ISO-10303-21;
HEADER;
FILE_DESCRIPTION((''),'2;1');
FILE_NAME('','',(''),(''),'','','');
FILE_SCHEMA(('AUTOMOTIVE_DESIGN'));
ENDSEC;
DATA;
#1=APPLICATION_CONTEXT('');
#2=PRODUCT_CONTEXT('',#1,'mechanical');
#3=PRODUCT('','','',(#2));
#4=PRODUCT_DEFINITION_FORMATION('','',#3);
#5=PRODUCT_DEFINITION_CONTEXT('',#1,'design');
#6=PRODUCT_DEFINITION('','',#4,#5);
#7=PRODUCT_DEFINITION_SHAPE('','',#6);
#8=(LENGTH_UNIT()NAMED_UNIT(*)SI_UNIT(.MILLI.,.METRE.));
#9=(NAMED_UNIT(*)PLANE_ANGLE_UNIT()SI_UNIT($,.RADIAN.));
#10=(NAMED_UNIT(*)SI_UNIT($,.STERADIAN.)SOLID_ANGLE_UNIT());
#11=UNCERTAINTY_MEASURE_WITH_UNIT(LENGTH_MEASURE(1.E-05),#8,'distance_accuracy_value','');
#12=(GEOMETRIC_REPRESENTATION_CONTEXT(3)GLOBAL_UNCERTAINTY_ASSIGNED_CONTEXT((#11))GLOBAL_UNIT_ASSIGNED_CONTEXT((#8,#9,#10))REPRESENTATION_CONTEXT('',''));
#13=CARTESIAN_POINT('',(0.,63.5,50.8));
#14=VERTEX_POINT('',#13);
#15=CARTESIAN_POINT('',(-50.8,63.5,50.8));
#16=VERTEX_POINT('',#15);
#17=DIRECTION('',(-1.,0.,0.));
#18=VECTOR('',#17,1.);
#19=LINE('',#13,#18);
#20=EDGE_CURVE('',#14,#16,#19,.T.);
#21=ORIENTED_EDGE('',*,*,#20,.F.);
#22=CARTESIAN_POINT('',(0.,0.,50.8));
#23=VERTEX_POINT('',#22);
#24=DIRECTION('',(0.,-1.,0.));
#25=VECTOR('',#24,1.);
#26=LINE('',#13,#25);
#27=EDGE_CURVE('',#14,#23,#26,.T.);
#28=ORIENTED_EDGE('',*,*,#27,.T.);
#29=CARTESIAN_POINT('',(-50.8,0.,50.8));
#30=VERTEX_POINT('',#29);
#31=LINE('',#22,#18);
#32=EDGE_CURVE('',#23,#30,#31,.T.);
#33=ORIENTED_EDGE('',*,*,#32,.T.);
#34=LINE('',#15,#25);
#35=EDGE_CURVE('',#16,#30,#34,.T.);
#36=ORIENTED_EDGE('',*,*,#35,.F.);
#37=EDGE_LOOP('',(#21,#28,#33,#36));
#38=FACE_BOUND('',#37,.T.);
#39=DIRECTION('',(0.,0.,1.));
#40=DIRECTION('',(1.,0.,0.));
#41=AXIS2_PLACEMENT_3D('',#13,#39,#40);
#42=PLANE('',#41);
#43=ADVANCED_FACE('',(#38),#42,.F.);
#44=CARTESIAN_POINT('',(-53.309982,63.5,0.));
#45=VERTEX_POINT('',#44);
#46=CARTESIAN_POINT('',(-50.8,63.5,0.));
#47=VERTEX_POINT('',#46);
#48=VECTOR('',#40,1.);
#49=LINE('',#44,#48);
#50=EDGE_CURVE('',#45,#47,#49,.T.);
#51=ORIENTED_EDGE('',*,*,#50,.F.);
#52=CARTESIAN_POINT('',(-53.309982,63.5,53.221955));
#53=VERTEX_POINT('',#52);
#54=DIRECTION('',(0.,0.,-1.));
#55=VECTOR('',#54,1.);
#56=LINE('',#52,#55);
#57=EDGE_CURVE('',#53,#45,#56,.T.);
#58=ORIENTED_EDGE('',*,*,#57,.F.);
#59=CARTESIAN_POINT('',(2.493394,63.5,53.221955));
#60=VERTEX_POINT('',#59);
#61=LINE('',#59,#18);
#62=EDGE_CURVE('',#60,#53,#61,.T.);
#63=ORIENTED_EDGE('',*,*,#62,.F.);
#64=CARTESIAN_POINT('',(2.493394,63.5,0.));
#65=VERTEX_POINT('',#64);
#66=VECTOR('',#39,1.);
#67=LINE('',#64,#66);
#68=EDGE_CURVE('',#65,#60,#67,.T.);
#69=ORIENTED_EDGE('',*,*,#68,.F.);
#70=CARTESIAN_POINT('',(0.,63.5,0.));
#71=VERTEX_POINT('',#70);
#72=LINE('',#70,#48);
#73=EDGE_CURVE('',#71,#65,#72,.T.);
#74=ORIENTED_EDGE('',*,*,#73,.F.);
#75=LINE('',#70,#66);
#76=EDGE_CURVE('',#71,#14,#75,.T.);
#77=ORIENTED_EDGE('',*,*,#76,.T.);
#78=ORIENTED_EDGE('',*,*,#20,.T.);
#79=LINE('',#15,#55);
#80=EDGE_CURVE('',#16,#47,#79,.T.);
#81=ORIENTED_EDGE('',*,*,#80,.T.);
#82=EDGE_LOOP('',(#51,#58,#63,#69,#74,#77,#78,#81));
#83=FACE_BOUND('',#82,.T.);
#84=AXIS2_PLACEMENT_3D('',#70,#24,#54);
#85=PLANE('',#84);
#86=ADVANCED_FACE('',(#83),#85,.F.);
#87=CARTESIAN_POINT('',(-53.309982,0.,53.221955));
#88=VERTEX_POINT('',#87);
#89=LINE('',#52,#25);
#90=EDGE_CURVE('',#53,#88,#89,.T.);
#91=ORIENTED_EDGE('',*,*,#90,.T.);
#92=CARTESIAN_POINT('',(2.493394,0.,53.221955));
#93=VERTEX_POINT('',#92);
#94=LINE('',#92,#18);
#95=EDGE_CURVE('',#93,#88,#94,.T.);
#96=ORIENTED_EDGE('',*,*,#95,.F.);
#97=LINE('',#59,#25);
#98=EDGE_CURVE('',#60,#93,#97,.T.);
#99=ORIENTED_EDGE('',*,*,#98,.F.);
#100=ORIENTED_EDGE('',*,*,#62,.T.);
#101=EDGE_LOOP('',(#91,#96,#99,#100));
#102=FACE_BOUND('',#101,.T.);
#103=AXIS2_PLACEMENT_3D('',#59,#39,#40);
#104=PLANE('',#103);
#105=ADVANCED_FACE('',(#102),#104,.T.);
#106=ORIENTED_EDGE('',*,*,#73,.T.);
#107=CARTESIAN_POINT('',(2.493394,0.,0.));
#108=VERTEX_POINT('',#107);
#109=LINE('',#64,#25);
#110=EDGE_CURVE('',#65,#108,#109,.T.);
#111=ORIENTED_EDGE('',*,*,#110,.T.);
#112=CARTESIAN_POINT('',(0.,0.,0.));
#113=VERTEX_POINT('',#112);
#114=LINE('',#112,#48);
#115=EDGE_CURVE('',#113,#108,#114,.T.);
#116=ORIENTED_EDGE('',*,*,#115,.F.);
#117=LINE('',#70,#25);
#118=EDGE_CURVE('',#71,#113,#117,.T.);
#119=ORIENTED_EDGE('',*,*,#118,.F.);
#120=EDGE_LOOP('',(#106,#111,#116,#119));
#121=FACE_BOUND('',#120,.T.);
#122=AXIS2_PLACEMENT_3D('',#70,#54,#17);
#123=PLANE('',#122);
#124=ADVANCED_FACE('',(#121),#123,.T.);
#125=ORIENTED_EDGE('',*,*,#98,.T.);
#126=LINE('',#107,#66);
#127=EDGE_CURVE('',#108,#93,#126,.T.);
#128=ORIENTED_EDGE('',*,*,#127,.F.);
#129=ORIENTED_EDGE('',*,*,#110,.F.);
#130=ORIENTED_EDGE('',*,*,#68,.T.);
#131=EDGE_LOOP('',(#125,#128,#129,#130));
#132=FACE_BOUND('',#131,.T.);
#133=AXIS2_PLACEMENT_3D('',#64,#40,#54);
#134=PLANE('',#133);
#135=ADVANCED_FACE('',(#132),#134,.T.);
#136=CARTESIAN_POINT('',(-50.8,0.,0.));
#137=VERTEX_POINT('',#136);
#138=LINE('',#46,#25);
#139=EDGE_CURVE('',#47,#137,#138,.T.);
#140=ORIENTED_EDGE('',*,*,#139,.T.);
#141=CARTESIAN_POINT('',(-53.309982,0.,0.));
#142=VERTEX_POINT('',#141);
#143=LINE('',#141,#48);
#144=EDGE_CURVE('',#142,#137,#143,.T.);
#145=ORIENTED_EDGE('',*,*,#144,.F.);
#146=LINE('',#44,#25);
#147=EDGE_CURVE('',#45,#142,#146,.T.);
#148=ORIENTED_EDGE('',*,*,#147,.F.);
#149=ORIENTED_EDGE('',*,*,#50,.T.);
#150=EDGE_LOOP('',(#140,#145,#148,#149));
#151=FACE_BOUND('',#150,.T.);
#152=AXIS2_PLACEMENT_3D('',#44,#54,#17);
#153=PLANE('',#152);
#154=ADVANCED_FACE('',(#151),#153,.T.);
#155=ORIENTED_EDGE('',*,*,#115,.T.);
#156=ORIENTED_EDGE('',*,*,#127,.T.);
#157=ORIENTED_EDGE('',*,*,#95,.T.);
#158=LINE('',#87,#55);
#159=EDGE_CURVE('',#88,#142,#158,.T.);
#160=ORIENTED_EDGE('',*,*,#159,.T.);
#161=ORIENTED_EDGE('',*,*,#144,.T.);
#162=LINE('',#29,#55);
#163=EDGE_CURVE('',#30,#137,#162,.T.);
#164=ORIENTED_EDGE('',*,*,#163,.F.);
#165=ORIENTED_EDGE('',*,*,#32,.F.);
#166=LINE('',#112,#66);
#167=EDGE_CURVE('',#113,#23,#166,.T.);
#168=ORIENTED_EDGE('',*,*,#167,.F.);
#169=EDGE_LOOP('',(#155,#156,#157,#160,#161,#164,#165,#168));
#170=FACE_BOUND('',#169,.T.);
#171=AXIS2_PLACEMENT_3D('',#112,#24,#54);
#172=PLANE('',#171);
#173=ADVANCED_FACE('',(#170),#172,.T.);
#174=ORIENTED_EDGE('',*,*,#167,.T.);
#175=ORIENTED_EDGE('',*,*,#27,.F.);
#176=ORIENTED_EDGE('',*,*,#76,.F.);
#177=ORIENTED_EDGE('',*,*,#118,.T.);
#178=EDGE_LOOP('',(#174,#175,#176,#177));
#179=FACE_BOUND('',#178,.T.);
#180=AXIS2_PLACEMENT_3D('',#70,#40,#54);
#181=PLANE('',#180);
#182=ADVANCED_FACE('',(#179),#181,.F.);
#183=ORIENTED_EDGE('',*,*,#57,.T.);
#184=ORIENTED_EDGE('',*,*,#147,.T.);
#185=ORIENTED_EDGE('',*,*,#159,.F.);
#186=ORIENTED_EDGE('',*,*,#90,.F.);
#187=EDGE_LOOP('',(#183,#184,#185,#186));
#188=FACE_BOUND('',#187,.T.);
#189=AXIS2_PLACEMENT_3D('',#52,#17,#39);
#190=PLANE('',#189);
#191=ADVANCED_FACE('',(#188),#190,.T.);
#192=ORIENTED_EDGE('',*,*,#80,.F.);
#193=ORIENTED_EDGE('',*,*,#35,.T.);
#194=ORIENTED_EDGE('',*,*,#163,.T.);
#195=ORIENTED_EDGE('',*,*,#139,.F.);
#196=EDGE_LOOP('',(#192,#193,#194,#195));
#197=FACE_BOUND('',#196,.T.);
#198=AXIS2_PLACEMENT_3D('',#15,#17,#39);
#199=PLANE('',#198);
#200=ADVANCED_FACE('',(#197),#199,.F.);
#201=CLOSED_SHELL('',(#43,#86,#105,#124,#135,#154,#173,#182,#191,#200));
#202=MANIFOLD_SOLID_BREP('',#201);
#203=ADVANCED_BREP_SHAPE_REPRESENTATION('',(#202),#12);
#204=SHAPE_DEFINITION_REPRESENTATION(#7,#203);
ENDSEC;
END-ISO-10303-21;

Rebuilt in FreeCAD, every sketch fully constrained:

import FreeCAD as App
import Part
import Sketcher
from FreeCAD import Vector
Q = App.Units.Quantity


def add_polygon(sketch, points):
    """Adds a closed chain of lines whose ends are joined by coincident constraints."""
    first, n = sketch.GeometryCount, len(points)
    for a, b in zip(points, points[1:] + points[:1]):
        sketch.addGeometry(Part.LineSegment(App.Vector(*a, 0), App.Vector(*b, 0)), False)
    for i in range(n):
        sketch.addConstraint(Sketcher.Constraint("Coincident", first + i, 2, first + (i + 1) % n, 1))

doc = App.newDocument("Part")
params = doc.addObject("Spreadsheet::Sheet", "Params")
for row, (alias, value) in enumerate([
    ("sketch1_width", "2 in"),
    ("pad1_length", "2.5 in"),
], start=1):
    params.set(f"A{row}", alias)
    params.set(f"B{row}", "=" + value)
    params.setAlias(f"B{row}", alias)

body = doc.addObject("PartDesign::Body", "Body")

# Sketch on XZ plane
sketch1 = body.newObject("Sketcher::SketchObject", "Sketch")
sketch1.AttachmentSupport = (doc.getObject("XZ_Plane"), [""])
sketch1.MapMode = "FlatFace"
add_polygon(sketch1, [(0, 0), (0, 50.8), (-50.8, 50.8), (-50.8, 0), (-53.3, 0), (-53.3, 53.2), (2.5, 53.2), (2.5, 0)])  # lines 0-7
sketch1.addConstraint([
    Sketcher.Constraint("Vertical", 0),
    Sketcher.Constraint("Horizontal", 1),
    Sketcher.Constraint("Vertical", 2),
    Sketcher.Constraint("Horizontal", 3),
    Sketcher.Constraint("Vertical", 4),
    Sketcher.Constraint("Horizontal", 5),
    Sketcher.Constraint("Vertical", 6),
    Sketcher.Constraint("Horizontal", 7),
    Sketcher.Constraint("Coincident", 7, 2, -1, 1),
    Sketcher.Constraint("PointOnObject", 2, 2, -1),
    Sketcher.Constraint("Equal", 1, 0),
    Sketcher.Constraint("DistanceX", 1, 2, 1, 1, Q("2 in")),
    Sketcher.Constraint("DistanceX", 3, 2, 3, 1, 2.509982),
    Sketcher.Constraint("DistanceX", 5, 1, 5, 2, 55.803376),
    Sketcher.Constraint("DistanceY", 4, 1, 4, 2, 53.221955),
])
sketch1.setExpression("Constraints[19]", "Params.sketch1_width")
pad1 = body.newObject("PartDesign::Pad", "Pad")
pad1.Profile = sketch1
pad1.setExpression("Length", "Params.pad1_length")
pad1.Reversed = True

doc.recompute()
